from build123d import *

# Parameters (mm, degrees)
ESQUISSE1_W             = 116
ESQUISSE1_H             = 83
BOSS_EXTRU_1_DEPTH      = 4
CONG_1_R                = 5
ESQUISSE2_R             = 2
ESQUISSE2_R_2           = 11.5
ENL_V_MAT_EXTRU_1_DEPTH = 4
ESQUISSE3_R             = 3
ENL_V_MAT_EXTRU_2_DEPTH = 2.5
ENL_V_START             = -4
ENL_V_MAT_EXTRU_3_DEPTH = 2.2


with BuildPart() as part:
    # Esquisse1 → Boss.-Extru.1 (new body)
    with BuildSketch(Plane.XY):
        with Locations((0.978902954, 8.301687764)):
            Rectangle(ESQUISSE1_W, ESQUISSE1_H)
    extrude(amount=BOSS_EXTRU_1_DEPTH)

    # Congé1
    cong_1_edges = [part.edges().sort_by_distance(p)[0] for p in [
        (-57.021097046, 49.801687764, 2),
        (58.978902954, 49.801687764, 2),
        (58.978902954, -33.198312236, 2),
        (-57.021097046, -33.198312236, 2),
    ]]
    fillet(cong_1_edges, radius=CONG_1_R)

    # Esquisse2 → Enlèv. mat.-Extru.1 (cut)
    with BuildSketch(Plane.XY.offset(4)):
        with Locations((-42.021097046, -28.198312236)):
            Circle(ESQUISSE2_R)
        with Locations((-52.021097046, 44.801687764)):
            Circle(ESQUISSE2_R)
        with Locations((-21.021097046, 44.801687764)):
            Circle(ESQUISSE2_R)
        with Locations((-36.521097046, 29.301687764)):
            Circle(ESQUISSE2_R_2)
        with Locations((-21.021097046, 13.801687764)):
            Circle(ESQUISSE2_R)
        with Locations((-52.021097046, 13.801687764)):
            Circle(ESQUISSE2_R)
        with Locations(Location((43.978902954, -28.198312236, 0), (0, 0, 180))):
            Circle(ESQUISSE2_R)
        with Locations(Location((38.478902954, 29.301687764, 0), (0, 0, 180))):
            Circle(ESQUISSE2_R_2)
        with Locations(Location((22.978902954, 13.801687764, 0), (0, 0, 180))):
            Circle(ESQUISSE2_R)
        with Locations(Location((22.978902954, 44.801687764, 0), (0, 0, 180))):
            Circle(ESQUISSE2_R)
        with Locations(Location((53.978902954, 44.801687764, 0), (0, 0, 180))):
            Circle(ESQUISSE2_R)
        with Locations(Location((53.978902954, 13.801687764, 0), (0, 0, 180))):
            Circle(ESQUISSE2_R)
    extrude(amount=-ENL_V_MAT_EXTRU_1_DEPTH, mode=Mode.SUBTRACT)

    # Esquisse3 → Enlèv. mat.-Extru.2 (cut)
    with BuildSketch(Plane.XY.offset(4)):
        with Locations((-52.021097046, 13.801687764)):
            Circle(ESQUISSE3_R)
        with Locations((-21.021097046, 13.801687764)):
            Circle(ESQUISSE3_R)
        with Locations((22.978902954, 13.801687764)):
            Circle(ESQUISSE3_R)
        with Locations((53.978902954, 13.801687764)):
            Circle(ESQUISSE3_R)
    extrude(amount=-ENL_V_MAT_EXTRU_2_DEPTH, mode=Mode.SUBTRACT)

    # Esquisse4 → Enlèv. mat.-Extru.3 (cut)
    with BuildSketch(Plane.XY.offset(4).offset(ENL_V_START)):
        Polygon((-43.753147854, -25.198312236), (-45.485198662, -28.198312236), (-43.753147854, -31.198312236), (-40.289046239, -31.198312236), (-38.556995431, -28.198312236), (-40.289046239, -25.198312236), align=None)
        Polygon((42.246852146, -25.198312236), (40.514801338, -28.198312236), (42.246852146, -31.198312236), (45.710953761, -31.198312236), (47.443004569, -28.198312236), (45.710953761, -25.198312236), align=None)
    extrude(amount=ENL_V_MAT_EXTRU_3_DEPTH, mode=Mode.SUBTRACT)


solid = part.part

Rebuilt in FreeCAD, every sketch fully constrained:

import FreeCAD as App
import Part
import Sketcher

V = App.Vector
Q = App.Units.Quantity


def edges_at(feature, points):
    """Names of the edges that pass closest to the given points."""
    edges = feature.Shape.Edges
    near = lambda p: min(range(len(edges)), key=lambda i: edges[i].distToShape(Part.Vertex(*p))[0])
    return sorted({f"Edge{near(p) + 1}" for p in points})

doc = App.newDocument("Part")
body = doc.addObject("PartDesign::Body", "Body")

sketch1 = body.newObject("Sketcher::SketchObject", "Sketch")
sketch1.AttachmentSupport = (doc.getObject("XY_Plane"), [""])
sketch1.MapMode = "FlatFace"
sketch1.addGeometry(Part.LineSegment(V(-57.021097, 49.801688, 0), V(-57.021097, -33.198312, 0)), False)
sketch1.addGeometry(Part.LineSegment(V(-57.021097, -33.198312, 0), V(58.978903, -33.198312, 0)), False)
sketch1.addGeometry(Part.LineSegment(V(58.978903, -33.198312, 0), V(58.978903, 49.801688, 0)), False)
sketch1.addGeometry(Part.LineSegment(V(58.978903, 49.801688, 0), V(-57.021097, 49.801688, 0)), False)
sketch1.addConstraint(Sketcher.Constraint("Coincident", 0, 2, 1, 1))
sketch1.addConstraint(Sketcher.Constraint("Coincident", 1, 2, 2, 1))
sketch1.addConstraint(Sketcher.Constraint("Coincident", 2, 2, 3, 1))
sketch1.addConstraint(Sketcher.Constraint("Coincident", 3, 2, 0, 1))
sketch1.addConstraint(Sketcher.Constraint("Vertical", 0))
sketch1.addConstraint(Sketcher.Constraint("Horizontal", 1))
sketch1.addConstraint(Sketcher.Constraint("Vertical", 2))
sketch1.addConstraint(Sketcher.Constraint("Horizontal", 3))
sketch1.addConstraint(Sketcher.Constraint("DistanceX", 1, 1, 1, 2, 116.0))
sketch1.addConstraint(Sketcher.Constraint("DistanceY", 0, 2, 0, 1, 83.0))
sketch1.addConstraint(Sketcher.Constraint("DistanceX", 0, 2, -1, 1, 57.021097))
sketch1.addConstraint(Sketcher.Constraint("DistanceY", 0, 2, -1, 1, 33.198312))
pad1 = body.newObject("PartDesign::Pad", "Pad")
pad1.Profile = sketch1
pad1.Length = 4
doc.recompute()

fillet = body.newObject("PartDesign::Fillet", "Fillet")
fillet.Base = (pad1, edges_at(pad1, [
    (-57.021, 49.802, 2),
    (58.979, 49.802, 2),
    (58.979, -33.198, 2),
    (-57.021, -33.198, 2),
]))
fillet.Radius = 5

sketch2 = body.newObject("Sketcher::SketchObject", "Sketch001")
sketch2.AttachmentSupport = (doc.getObject("XY_Plane"), [""])
sketch2.MapMode = "FlatFace"
sketch2.AttachmentOffset = App.Placement(V(0, 0, 4), App.Rotation())
sketch2.addGeometry(Part.Circle(V(-42.021097, -28.198312, 0), V(0, 0, 1), 2), False)
sketch2.addGeometry(Part.Circle(V(-52.021097, 44.801688, 0), V(0, 0, 1), 2), False)
sketch2.addGeometry(Part.Circle(V(-21.021097, 44.801688, 0), V(0, 0, 1), 2), False)
sketch2.addGeometry(Part.Circle(V(-36.521097, 29.301688, 0), V(0, 0, 1), 11.5), False)
sketch2.addGeometry(Part.Circle(V(-21.021097, 13.801688, 0), V(0, 0, 1), 2), False)
sketch2.addGeometry(Part.Circle(V(-52.021097, 13.801688, 0), V(0, 0, 1), 2), False)
sketch2.addGeometry(Part.Circle(V(43.978903, -28.198312, 0), V(0, 0, 1), 2), False)
sketch2.addGeometry(Part.Circle(V(38.478903, 29.301688, 0), V(0, 0, 1), 11.5), False)
sketch2.addGeometry(Part.Circle(V(22.978903, 13.801688, 0), V(0, 0, 1), 2), False)
sketch2.addGeometry(Part.Circle(V(22.978903, 44.801688, 0), V(0, 0, 1), 2), False)
sketch2.addGeometry(Part.Circle(V(53.978903, 44.801688, 0), V(0, 0, 1), 2), False)
sketch2.addGeometry(Part.Circle(V(53.978903, 13.801688, 0), V(0, 0, 1), 2), False)
sketch2.addConstraint(Sketcher.Constraint("Equal", 0, 1))
sketch2.addConstraint(Sketcher.Constraint("Equal", 1, 2))
sketch2.addConstraint(Sketcher.Constraint("Equal", 2, 4))
sketch2.addConstraint(Sketcher.Constraint("Equal", 4, 5))
sketch2.addConstraint(Sketcher.Constraint("Equal", 5, 6))
sketch2.addConstraint(Sketcher.Constraint("Equal", 3, 7))
sketch2.addConstraint(Sketcher.Constraint("Equal", 6, 8))
sketch2.addConstraint(Sketcher.Constraint("Equal", 8, 9))
sketch2.addConstraint(Sketcher.Constraint("Equal", 9, 10))
sketch2.addConstraint(Sketcher.Constraint("Equal", 10, 11))
sketch2.addConstraint(Sketcher.Constraint("Horizontal", 1, 3, 2, 3))
sketch2.addConstraint(Sketcher.Constraint("Horizontal", 4, 3, 5, 3))
sketch2.addConstraint(Sketcher.Constraint("Horizontal", 0, 3, 6, 3))
sketch2.addConstraint(Sketcher.Constraint("Horizontal", 3, 3, 7, 3))
sketch2.addConstraint(Sketcher.Constraint("Horizontal", 5, 3, 8, 3))
sketch2.addConstraint(Sketcher.Constraint("Horizontal", 2, 3, 9, 3))
sketch2.addConstraint(Sketcher.Constraint("Horizontal", 9, 3, 10, 3))
sketch2.addConstraint(Sketcher.Constraint("Horizontal", 8, 3, 11, 3))
sketch2.addConstraint(Sketcher.Constraint("Vertical", 2, 3, 4, 3))
sketch2.addConstraint(Sketcher.Constraint("Vertical", 1, 3, 5, 3))
sketch2.addConstraint(Sketcher.Constraint("Vertical", 8, 3, 9, 3))
sketch2.addConstraint(Sketcher.Constraint("Vertical", 10, 3, 11, 3))
sketch2.addConstraint(Sketcher.Constraint("Diameter", 0, 4.0))
sketch2.addConstraint(Sketcher.Constraint("Diameter", 3, 23.0))
sketch2.addConstraint(Sketcher.Constraint("DistanceX", 1, 3, 0, 3, 10.0))
sketch2.addConstraint(Sketcher.Constraint("DistanceY", 0, 3, 1, 3, 73.0))
sketch2.addConstraint(Sketcher.Constraint("DistanceX", 1, 3, 2, 3, 31.0))
sketch2.addConstraint(Sketcher.Constraint("DistanceY", 4, 3, 2, 3, 31.0))
sketch2.addConstraint(Sketcher.Constraint("DistanceX", 4, 3, 6, 3, 65.0))
sketch2.addConstraint(Sketcher.Constraint("DistanceX", 3, 3, 7, 3, 75.0))
sketch2.addConstraint(Sketcher.Constraint("DistanceX", 4, 3, 8, 3, 44.0))
sketch2.addConstraint(Sketcher.Constraint("DistanceX", 9, 3, 10, 3, 31.0))
sketch2.addConstraint(Sketcher.Constraint("DistanceX", 1, 3, 3, 3, 15.5))
sketch2.addConstraint(Sketcher.Constraint("DistanceY", 3, 3, 1, 3, 15.5))
sketch2.addConstraint(Sketcher.Constraint("DistanceX", 0, 3, -1, 1, 42.021097))
sketch2.addConstraint(Sketcher.Constraint("DistanceY", 0, 3, -1, 1, 28.198312))
pocket1 = body.newObject("PartDesign::Pocket", "Pocket")
pocket1.Profile = sketch2
pocket1.Length = 4

sketch3 = body.newObject("Sketcher::SketchObject", "Sketch002")
sketch3.AttachmentSupport = (doc.getObject("XY_Plane"), [""])
sketch3.MapMode = "FlatFace"
sketch3.AttachmentOffset = App.Placement(V(0, 0, 4), App.Rotation())
sketch3.addGeometry(Part.Circle(V(-52.021097, 13.801688, 0), V(0, 0, 1), 3), False)
sketch3.addGeometry(Part.Circle(V(-21.021097, 13.801688, 0), V(0, 0, 1), 3), False)
sketch3.addGeometry(Part.Circle(V(22.978903, 13.801688, 0), V(0, 0, 1), 3), False)
sketch3.addGeometry(Part.Circle(V(53.978903, 13.801688, 0), V(0, 0, 1), 3), False)
sketch3.addConstraint(Sketcher.Constraint("Equal", 0, 1))
sketch3.addConstraint(Sketcher.Constraint("Equal", 1, 2))
sketch3.addConstraint(Sketcher.Constraint("Equal", 2, 3))
sketch3.addConstraint(Sketcher.Constraint("Horizontal", 0, 3, 1, 3))
sketch3.addConstraint(Sketcher.Constraint("Horizontal", 1, 3, 2, 3))
sketch3.addConstraint(Sketcher.Constraint("Horizontal", 2, 3, 3, 3))
sketch3.addConstraint(Sketcher.Constraint("Diameter", 0, 6.0))
sketch3.addConstraint(Sketcher.Constraint("DistanceX", 0, 3, 1, 3, 31.0))
sketch3.addConstraint(Sketcher.Constraint("DistanceX", 1, 3, 2, 3, 44.0))
sketch3.addConstraint(Sketcher.Constraint("DistanceX", 2, 3, 3, 3, 31.0))
sketch3.addConstraint(Sketcher.Constraint("DistanceX", 0, 3, -1, 1, 52.021097))
sketch3.addConstraint(Sketcher.Constraint("DistanceY", -1, 1, 0, 3, 13.801688))
pocket2 = body.newObject("PartDesign::Pocket", "Pocket001")
pocket2.Profile = sketch3
pocket2.Length = 2.5

sketch4 = body.newObject("Sketcher::SketchObject", "Sketch003")
sketch4.AttachmentSupport = (doc.getObject("XY_Plane"), [""])
sketch4.MapMode = "FlatFace"
sketch4.addGeometry(Part.LineSegment(V(-43.753148, -25.198312, 0), V(-45.485199, -28.198312, 0)), False)
sketch4.addGeometry(Part.LineSegment(V(-45.485199, -28.198312, 0), V(-43.753148, -31.198312, 0)), False)
sketch4.addGeometry(Part.LineSegment(V(-43.753148, -31.198312, 0), V(-40.289046, -31.198312, 0)), False)
sketch4.addGeometry(Part.LineSegment(V(-40.289046, -31.198312, 0), V(-38.556995, -28.198312, 0)), False)
sketch4.addGeometry(Part.LineSegment(V(-38.556995, -28.198312, 0), V(-40.289046, -25.198312, 0)), False)
sketch4.addGeometry(Part.LineSegment(V(-40.289046, -25.198312, 0), V(-43.753148, -25.198312, 0)), False)
sketch4.addGeometry(Part.LineSegment(V(42.246852, -25.198312, 0), V(40.514801, -28.198312, 0)), False)
sketch4.addGeometry(Part.LineSegment(V(40.514801, -28.198312, 0), V(42.246852, -31.198312, 0)), False)
sketch4.addGeometry(Part.LineSegment(V(42.246852, -31.198312, 0), V(45.710954, -31.198312, 0)), False)
sketch4.addGeometry(Part.LineSegment(V(45.710954, -31.198312, 0), V(47.443005, -28.198312, 0)), False)
sketch4.addGeometry(Part.LineSegment(V(47.443005, -28.198312, 0), V(45.710954, -25.198312, 0)), False)
sketch4.addGeometry(Part.LineSegment(V(45.710954, -25.198312, 0), V(42.246852, -25.198312, 0)), False)
sketch4.addConstraint(Sketcher.Constraint("Coincident", 0, 2, 1, 1))
sketch4.addConstraint(Sketcher.Constraint("Coincident", 1, 2, 2, 1))
sketch4.addConstraint(Sketcher.Constraint("Coincident", 2, 2, 3, 1))
sketch4.addConstraint(Sketcher.Constraint("Coincident", 3, 2, 4, 1))
sketch4.addConstraint(Sketcher.Constraint("Coincident", 4, 2, 5, 1))
sketch4.addConstraint(Sketcher.Constraint("Coincident", 5, 2, 0, 1))
sketch4.addConstraint(Sketcher.Constraint("Coincident", 6, 2, 7, 1))
sketch4.addConstraint(Sketcher.Constraint("Coincident", 7, 2, 8, 1))
sketch4.addConstraint(Sketcher.Constraint("Coincident", 8, 2, 9, 1))
sketch4.addConstraint(Sketcher.Constraint("Coincident", 9, 2, 10, 1))
sketch4.addConstraint(Sketcher.Constraint("Coincident", 10, 2, 11, 1))
sketch4.addConstraint(Sketcher.Constraint("Coincident", 11, 2, 6, 1))
sketch4.addConstraint(Sketcher.Constraint("Horizontal", 2))
sketch4.addConstraint(Sketcher.Constraint("Horizontal", 5))
sketch4.addConstraint(Sketcher.Constraint("Horizontal", 8))
sketch4.addConstraint(Sketcher.Constraint("Horizontal", 11))
sketch4.addConstraint(Sketcher.Constraint("Parallel", 0, 3))
sketch4.addConstraint(Sketcher.Constraint("Parallel", 1, 4))
sketch4.addConstraint(Sketcher.Constraint("Parallel", 3, 6))
sketch4.addConstraint(Sketcher.Constraint("Parallel", 4, 7))
sketch4.addConstraint(Sketcher.Constraint("Parallel", 6, 9))
sketch4.addConstraint(Sketcher.Constraint("Parallel", 7, 10))
sketch4.addConstraint(Sketcher.Constraint("Horizontal", 0, 2, 3, 2))
sketch4.addConstraint(Sketcher.Constraint("Horizontal", 3, 2, 6, 2))
sketch4.addConstraint(Sketcher.Constraint("Horizontal", 2, 2, 7, 2))
sketch4.addConstraint(Sketcher.Constraint("Horizontal", 6, 2, 9, 2))
sketch4.addConstraint(Sketcher.Constraint("Horizontal", 5, 2, 10, 2))
sketch4.addConstraint(Sketcher.Constraint("Vertical", 2, 2, 4, 2))
sketch4.addConstraint(Sketcher.Constraint("Vertical", 1, 2, 5, 2))
sketch4.addConstraint(Sketcher.Constraint("Equal", 5, 8))
sketch4.addConstraint(Sketcher.Constraint("Angle", 0, Q("-120 deg")))
sketch4.addConstraint(Sketcher.Constraint("DistanceY", 1, 2, 0, 2, 3.0))
sketch4.addConstraint(Sketcher.Constraint("DistanceX", 1, 2, 7, 2, 86.0))
sketch4.addConstraint(Sketcher.Constraint("DistanceX", 2, 1, 2, 2, 3.464102))
sketch4.addConstraint(Sketcher.Constraint("DistanceX", 0, 2, -1, 1, 45.485199))
sketch4.addConstraint(Sketcher.Constraint("DistanceY", 0, 2, -1, 1, 28.198312))
pocket3 = body.newObject("PartDesign::Pocket", "Pocket002")
pocket3.Profile = sketch4
pocket3.Length = 2.2
pocket3.Reversed = True

doc.recompute()
